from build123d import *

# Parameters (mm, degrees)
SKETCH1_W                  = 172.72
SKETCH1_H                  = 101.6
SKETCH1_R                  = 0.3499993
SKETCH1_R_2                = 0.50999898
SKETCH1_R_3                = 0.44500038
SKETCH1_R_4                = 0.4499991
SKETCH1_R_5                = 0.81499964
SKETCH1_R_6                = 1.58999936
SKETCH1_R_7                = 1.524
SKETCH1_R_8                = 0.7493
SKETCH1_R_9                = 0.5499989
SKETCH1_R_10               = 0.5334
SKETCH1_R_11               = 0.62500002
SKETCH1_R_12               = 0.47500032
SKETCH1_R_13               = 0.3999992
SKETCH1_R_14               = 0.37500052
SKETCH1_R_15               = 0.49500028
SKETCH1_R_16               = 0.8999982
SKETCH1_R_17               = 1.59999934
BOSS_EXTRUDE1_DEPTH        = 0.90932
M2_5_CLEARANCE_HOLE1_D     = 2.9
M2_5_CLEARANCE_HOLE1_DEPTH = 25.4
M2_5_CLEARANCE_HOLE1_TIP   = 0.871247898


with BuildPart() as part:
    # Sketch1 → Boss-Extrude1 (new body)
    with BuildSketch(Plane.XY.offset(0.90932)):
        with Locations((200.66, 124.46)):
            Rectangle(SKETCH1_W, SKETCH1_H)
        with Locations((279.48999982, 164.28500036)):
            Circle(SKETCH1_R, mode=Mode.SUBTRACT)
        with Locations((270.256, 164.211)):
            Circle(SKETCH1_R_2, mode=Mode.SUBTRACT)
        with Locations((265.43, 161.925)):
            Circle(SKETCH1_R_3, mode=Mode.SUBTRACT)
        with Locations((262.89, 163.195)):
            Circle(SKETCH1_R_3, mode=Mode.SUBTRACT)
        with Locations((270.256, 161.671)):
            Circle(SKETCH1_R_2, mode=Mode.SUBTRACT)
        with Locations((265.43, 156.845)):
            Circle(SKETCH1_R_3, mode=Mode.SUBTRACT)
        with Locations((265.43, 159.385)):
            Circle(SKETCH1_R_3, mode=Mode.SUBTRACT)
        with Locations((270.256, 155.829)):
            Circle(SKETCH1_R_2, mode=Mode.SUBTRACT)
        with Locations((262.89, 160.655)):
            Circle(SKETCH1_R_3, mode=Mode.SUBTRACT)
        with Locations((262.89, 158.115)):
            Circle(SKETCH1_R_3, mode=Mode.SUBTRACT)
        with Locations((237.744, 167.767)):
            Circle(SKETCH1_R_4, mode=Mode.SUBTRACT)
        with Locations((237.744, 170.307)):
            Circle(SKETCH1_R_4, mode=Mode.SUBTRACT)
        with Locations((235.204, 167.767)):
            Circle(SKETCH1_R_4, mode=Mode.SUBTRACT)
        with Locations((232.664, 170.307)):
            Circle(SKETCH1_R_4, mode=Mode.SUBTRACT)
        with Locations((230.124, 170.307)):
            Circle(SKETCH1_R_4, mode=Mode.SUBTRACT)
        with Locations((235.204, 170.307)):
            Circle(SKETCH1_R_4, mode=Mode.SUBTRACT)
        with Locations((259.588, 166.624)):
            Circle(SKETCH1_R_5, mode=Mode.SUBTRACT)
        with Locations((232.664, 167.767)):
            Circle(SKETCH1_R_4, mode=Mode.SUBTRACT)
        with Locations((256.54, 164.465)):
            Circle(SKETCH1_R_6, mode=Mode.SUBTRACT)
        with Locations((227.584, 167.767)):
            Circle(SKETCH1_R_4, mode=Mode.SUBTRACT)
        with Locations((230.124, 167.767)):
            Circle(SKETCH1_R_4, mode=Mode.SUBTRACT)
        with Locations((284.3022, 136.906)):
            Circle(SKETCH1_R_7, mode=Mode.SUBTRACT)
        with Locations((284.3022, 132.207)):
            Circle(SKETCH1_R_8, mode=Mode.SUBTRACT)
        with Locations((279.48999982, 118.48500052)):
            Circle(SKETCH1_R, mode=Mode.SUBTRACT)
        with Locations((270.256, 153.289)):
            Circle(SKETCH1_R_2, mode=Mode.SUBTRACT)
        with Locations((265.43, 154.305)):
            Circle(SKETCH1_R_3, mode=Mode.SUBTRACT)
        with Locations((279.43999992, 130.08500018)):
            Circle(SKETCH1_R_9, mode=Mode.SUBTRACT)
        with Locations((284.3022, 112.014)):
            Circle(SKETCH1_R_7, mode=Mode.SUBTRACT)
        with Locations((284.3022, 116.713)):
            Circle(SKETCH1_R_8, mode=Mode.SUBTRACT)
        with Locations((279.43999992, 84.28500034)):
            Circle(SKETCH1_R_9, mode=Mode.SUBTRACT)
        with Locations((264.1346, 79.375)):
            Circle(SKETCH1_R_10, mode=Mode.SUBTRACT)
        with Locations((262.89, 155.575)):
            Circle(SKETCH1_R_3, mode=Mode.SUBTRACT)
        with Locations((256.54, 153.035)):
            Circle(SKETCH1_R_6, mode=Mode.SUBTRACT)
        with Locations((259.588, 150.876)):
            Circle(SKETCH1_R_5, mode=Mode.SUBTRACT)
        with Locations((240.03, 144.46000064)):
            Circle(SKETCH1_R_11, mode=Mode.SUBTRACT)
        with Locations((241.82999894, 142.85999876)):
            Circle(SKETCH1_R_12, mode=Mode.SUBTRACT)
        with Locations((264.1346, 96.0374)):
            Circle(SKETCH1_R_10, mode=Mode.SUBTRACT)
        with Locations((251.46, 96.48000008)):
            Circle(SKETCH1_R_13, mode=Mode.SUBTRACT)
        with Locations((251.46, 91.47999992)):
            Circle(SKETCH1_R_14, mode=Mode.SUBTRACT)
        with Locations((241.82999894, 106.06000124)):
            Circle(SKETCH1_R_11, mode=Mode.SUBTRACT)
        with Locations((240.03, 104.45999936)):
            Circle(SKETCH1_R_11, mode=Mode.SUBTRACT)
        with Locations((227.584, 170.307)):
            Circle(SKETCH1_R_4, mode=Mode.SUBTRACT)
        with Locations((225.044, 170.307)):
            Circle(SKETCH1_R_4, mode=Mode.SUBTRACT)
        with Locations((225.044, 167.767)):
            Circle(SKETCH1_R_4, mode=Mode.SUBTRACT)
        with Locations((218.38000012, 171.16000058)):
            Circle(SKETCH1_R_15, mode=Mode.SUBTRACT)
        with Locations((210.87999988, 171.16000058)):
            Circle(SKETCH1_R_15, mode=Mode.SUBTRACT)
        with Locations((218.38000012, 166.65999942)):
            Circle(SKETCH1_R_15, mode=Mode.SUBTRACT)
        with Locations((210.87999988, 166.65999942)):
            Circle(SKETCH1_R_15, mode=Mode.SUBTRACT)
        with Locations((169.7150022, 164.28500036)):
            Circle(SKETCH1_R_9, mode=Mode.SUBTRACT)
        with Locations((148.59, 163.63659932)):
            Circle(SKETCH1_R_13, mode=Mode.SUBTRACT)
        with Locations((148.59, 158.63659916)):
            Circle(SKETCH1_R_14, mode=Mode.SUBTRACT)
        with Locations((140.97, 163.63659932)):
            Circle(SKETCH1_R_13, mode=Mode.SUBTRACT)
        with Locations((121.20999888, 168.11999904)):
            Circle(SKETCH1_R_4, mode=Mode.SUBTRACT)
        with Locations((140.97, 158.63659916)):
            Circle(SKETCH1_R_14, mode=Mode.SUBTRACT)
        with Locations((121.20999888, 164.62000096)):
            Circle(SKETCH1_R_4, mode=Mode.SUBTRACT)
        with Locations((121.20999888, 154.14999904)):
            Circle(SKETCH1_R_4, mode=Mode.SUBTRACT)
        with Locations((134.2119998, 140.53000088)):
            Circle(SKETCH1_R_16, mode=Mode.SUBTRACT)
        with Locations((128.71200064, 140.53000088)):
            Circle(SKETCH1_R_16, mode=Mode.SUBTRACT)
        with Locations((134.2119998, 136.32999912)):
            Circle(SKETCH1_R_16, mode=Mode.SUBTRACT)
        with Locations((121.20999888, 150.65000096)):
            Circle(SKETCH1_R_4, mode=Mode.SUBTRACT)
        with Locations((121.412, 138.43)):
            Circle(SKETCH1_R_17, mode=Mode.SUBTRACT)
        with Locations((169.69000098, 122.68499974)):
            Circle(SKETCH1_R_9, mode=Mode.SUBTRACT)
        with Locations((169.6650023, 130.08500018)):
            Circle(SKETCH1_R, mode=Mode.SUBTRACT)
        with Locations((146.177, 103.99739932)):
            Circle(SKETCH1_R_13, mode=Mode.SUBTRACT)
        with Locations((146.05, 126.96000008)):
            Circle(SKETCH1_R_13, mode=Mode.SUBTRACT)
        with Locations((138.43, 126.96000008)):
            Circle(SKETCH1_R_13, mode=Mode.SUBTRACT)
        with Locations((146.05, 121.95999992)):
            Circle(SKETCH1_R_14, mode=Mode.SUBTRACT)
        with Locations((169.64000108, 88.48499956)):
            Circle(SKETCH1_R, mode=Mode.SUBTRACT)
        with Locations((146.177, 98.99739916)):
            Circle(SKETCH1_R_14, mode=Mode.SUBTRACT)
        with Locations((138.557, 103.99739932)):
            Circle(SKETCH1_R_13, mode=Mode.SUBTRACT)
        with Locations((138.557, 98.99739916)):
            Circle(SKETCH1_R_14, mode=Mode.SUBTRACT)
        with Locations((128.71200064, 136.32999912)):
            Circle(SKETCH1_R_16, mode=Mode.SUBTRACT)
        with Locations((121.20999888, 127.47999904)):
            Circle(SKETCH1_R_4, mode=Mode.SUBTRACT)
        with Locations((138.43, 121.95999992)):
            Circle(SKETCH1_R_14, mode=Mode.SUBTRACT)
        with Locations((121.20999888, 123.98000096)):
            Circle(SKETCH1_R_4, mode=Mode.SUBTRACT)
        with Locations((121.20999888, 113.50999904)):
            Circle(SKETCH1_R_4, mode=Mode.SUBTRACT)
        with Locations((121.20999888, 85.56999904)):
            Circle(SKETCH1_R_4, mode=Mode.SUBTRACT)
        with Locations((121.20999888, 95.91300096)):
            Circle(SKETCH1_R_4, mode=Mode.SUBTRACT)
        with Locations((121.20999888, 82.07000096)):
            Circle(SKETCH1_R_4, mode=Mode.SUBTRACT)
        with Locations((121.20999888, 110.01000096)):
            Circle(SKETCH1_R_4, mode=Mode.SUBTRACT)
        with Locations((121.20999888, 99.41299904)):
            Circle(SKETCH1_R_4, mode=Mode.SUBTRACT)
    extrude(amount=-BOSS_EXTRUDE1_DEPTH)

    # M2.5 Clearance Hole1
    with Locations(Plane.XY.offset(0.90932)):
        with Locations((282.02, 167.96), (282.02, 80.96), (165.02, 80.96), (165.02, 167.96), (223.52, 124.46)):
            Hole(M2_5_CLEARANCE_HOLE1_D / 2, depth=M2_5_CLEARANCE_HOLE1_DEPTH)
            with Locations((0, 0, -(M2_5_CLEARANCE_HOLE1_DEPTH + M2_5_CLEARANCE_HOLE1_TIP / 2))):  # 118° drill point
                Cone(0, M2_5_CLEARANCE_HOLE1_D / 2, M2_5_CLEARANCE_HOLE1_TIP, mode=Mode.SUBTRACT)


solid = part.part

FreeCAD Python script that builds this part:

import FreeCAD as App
import Part
import Sketcher
Q = App.Units.Quantity


def add_polygon(sketch, points):
    """Adds a closed chain of lines whose ends are joined by coincident constraints."""
    first, n = sketch.GeometryCount, len(points)
    for a, b in zip(points, points[1:] + points[:1]):
        sketch.addGeometry(Part.LineSegment(App.Vector(*a, 0), App.Vector(*b, 0)), False)
    for i in range(n):
        sketch.addConstraint(Sketcher.Constraint("Coincident", first + i, 2, first + (i + 1) % n, 1))

doc = App.newDocument("Part")
body = doc.addObject("PartDesign::Body", "Body")

sketch1 = body.newObject("Sketcher::SketchObject", "Sketch")
sketch1.AttachmentSupport = (doc.getObject("XY_Plane"), [""])
sketch1.MapMode = "FlatFace"
sketch1.AttachmentOffset = App.Placement(App.Vector(0, 0, 0.0358 * 25.4), App.Rotation())
add_polygon(sketch1, [(114.3, 175.26), (114.3, 73.66), (287.02, 73.66), (287.02, 175.26)])
sketch1.addGeometry(Part.Circle(App.Vector(121.21, 82.07, 0), App.Vector(0, 0, 1), 0.45), False)
sketch1.addGeometry(Part.Circle(App.Vector(121.21, 85.57, 0), App.Vector(0, 0, 1), 0.45), False)
sketch1.addGeometry(Part.Circle(App.Vector(121.21, 95.91, 0), App.Vector(0, 0, 1), 0.45), False)
sketch1.addGeometry(Part.Circle(App.Vector(121.21, 99.41, 0), App.Vector(0, 0, 1), 0.45), False)
sketch1.addGeometry(Part.Circle(App.Vector(138.56, 99, 0), App.Vector(0, 0, 1), 0.38), False)
sketch1.addGeometry(Part.Circle(App.Vector(146.18, 99, 0), App.Vector(0, 0, 1), 0.38), False)
sketch1.addGeometry(Part.Circle(App.Vector(169.64, 88.48, 0), App.Vector(0, 0, 1), 0.35), False)
sketch1.addGeometry(Part.Circle(App.Vector(138.56, 104, 0), App.Vector(0, 0, 1), 0.4), False)
sketch1.addGeometry(Part.Circle(App.Vector(121.21, 110.01, 0), App.Vector(0, 0, 1), 0.45), False)
sketch1.addGeometry(Part.Circle(App.Vector(121.21, 113.51, 0), App.Vector(0, 0, 1), 0.45), False)
sketch1.addGeometry(Part.Circle(App.Vector(146.18, 104, 0), App.Vector(0, 0, 1), 0.4), False)
sketch1.addGeometry(Part.Circle(App.Vector(121.21, 123.98, 0), App.Vector(0, 0, 1), 0.45), False)
sketch1.addGeometry(Part.Circle(App.Vector(138.43, 121.96, 0), App.Vector(0, 0, 1), 0.38), False)
sketch1.addGeometry(Part.Circle(App.Vector(146.05, 121.96, 0), App.Vector(0, 0, 1), 0.38), False)
sketch1.addGeometry(Part.Circle(App.Vector(169.69, 122.68, 0), App.Vector(0, 0, 1), 0.55), False)
sketch1.addGeometry(Part.Circle(App.Vector(264.13, 79.38, 0), App.Vector(0, 0, 1), 0.53), False)
sketch1.addGeometry(Part.Circle(App.Vector(279.44, 84.29, 0), App.Vector(0, 0, 1), 0.55), False)
sketch1.addGeometry(Part.Circle(App.Vector(251.46, 91.48, 0), App.Vector(0, 0, 1), 0.38), False)
sketch1.addGeometry(Part.Circle(App.Vector(264.13, 96.04, 0), App.Vector(0, 0, 1), 0.53), False)
sketch1.addGeometry(Part.Circle(App.Vector(251.46, 96.48, 0), App.Vector(0, 0, 1), 0.4), False)
sketch1.addGeometry(Part.Circle(App.Vector(240.03, 104.46, 0), App.Vector(0, 0, 1), 0.63), False)
sketch1.addGeometry(Part.Circle(App.Vector(241.83, 106.06, 0), App.Vector(0, 0, 1), 0.63), False)
sketch1.addGeometry(Part.Circle(App.Vector(284.3, 112.01, 0), App.Vector(0, 0, 1), 1.52), False)
sketch1.addGeometry(Part.Circle(App.Vector(279.49, 118.49, 0), App.Vector(0, 0, 1), 0.35), False)
sketch1.addGeometry(Part.Circle(App.Vector(284.3, 116.71, 0), App.Vector(0, 0, 1), 0.75), False)
sketch1.addGeometry(Part.Circle(App.Vector(121.21, 127.48, 0), App.Vector(0, 0, 1), 0.45), False)
sketch1.addGeometry(Part.Circle(App.Vector(138.43, 126.96, 0), App.Vector(0, 0, 1), 0.4), False)
sketch1.addGeometry(Part.Circle(App.Vector(128.71, 136.33, 0), App.Vector(0, 0, 1), 0.9), False)
sketch1.addGeometry(Part.Circle(App.Vector(134.21, 136.33, 0), App.Vector(0, 0, 1), 0.9), False)
sketch1.addGeometry(Part.Circle(App.Vector(146.05, 126.96, 0), App.Vector(0, 0, 1), 0.4), False)
sketch1.addGeometry(Part.Circle(App.Vector(121.41, 138.43, 0), App.Vector(0, 0, 1), 1.6), False)
sketch1.addGeometry(Part.Circle(App.Vector(128.71, 140.53, 0), App.Vector(0, 0, 1), 0.9), False)
sketch1.addGeometry(Part.Circle(App.Vector(134.21, 140.53, 0), App.Vector(0, 0, 1), 0.9), False)
sketch1.addGeometry(Part.Circle(App.Vector(169.67, 130.09, 0), App.Vector(0, 0, 1), 0.35), False)
sketch1.addGeometry(Part.Circle(App.Vector(121.21, 150.65, 0), App.Vector(0, 0, 1), 0.45), False)
sketch1.addGeometry(Part.Circle(App.Vector(121.21, 154.15, 0), App.Vector(0, 0, 1), 0.45), False)
sketch1.addGeometry(Part.Circle(App.Vector(140.97, 158.64, 0), App.Vector(0, 0, 1), 0.38), False)
sketch1.addGeometry(Part.Circle(App.Vector(148.59, 158.64, 0), App.Vector(0, 0, 1), 0.38), False)
sketch1.addGeometry(Part.Circle(App.Vector(121.21, 164.62, 0), App.Vector(0, 0, 1), 0.45), False)
sketch1.addGeometry(Part.Circle(App.Vector(121.21, 168.12, 0), App.Vector(0, 0, 1), 0.45), False)
sketch1.addGeometry(Part.Circle(App.Vector(140.97, 163.64, 0), App.Vector(0, 0, 1), 0.4), False)
sketch1.addGeometry(Part.Circle(App.Vector(148.59, 163.64, 0), App.Vector(0, 0, 1), 0.4), False)
sketch1.addGeometry(Part.Circle(App.Vector(169.72, 164.29, 0), App.Vector(0, 0, 1), 0.55), False)
sketch1.addGeometry(Part.Circle(App.Vector(241.83, 142.86, 0), App.Vector(0, 0, 1), 0.48), False)
sketch1.addGeometry(Part.Circle(App.Vector(240.03, 144.46, 0), App.Vector(0, 0, 1), 0.63), False)
sketch1.addGeometry(Part.Circle(App.Vector(279.44, 130.09, 0), App.Vector(0, 0, 1), 0.55), False)
sketch1.addGeometry(Part.Circle(App.Vector(284.3, 132.21, 0), App.Vector(0, 0, 1), 0.75), False)
sketch1.addGeometry(Part.Circle(App.Vector(284.3, 136.91, 0), App.Vector(0, 0, 1), 1.52), False)
sketch1.addGeometry(Part.Circle(App.Vector(210.88, 166.66, 0), App.Vector(0, 0, 1), 0.5), False)
sketch1.addGeometry(Part.Circle(App.Vector(210.88, 171.16, 0), App.Vector(0, 0, 1), 0.5), False)
sketch1.addGeometry(Part.Circle(App.Vector(218.38, 166.66, 0), App.Vector(0, 0, 1), 0.5), False)
sketch1.addGeometry(Part.Circle(App.Vector(218.38, 171.16, 0), App.Vector(0, 0, 1), 0.5), False)
sketch1.addGeometry(Part.Circle(App.Vector(225.04, 167.77, 0), App.Vector(0, 0, 1), 0.45), False)
sketch1.addGeometry(Part.Circle(App.Vector(227.58, 167.77, 0), App.Vector(0, 0, 1), 0.45), False)
sketch1.addGeometry(Part.Circle(App.Vector(230.12, 167.77, 0), App.Vector(0, 0, 1), 0.45), False)
sketch1.addGeometry(Part.Circle(App.Vector(232.66, 167.77, 0), App.Vector(0, 0, 1), 0.45), False)
sketch1.addGeometry(Part.Circle(App.Vector(225.04, 170.31, 0), App.Vector(0, 0, 1), 0.45), False)
sketch1.addGeometry(Part.Circle(App.Vector(227.58, 170.31, 0), App.Vector(0, 0, 1), 0.45), False)
sketch1.addGeometry(Part.Circle(App.Vector(230.12, 170.31, 0), App.Vector(0, 0, 1), 0.45), False)
sketch1.addGeometry(Part.Circle(App.Vector(232.66, 170.31, 0), App.Vector(0, 0, 1), 0.45), False)
sketch1.addGeometry(Part.Circle(App.Vector(235.2, 167.77, 0), App.Vector(0, 0, 1), 0.45), False)
sketch1.addGeometry(Part.Circle(App.Vector(237.74, 167.77, 0), App.Vector(0, 0, 1), 0.45), False)
sketch1.addGeometry(Part.Circle(App.Vector(235.2, 170.31, 0), App.Vector(0, 0, 1), 0.45), False)
sketch1.addGeometry(Part.Circle(App.Vector(237.74, 170.31, 0), App.Vector(0, 0, 1), 0.45), False)
sketch1.addGeometry(Part.Circle(App.Vector(259.59, 150.88, 0), App.Vector(0, 0, 1), 0.81), False)
sketch1.addGeometry(Part.Circle(App.Vector(256.54, 153.03, 0), App.Vector(0, 0, 1), 1.59), False)
sketch1.addGeometry(Part.Circle(App.Vector(262.89, 155.57, 0), App.Vector(0, 0, 1), 0.45), False)
sketch1.addGeometry(Part.Circle(App.Vector(262.89, 158.12, 0), App.Vector(0, 0, 1), 0.45), False)
sketch1.addGeometry(Part.Circle(App.Vector(270.26, 153.29, 0), App.Vector(0, 0, 1), 0.51), False)
sketch1.addGeometry(Part.Circle(App.Vector(265.43, 154.31, 0), App.Vector(0, 0, 1), 0.45), False)
sketch1.addGeometry(Part.Circle(App.Vector(265.43, 156.84, 0), App.Vector(0, 0, 1), 0.45), False)
sketch1.addGeometry(Part.Circle(App.Vector(270.26, 155.83, 0), App.Vector(0, 0, 1), 0.51), False)
sketch1.addGeometry(Part.Circle(App.Vector(265.43, 159.38, 0), App.Vector(0, 0, 1), 0.45), False)
sketch1.addGeometry(Part.Circle(App.Vector(262.89, 160.66, 0), App.Vector(0, 0, 1), 0.45), False)
sketch1.addGeometry(Part.Circle(App.Vector(256.54, 164.47, 0), App.Vector(0, 0, 1), 1.59), False)
sketch1.addGeometry(Part.Circle(App.Vector(262.89, 163.19, 0), App.Vector(0, 0, 1), 0.45), False)
sketch1.addGeometry(Part.Circle(App.Vector(259.59, 166.62, 0), App.Vector(0, 0, 1), 0.81), False)
sketch1.addGeometry(Part.Circle(App.Vector(265.43, 161.93, 0), App.Vector(0, 0, 1), 0.45), False)
sketch1.addGeometry(Part.Circle(App.Vector(270.26, 161.67, 0), App.Vector(0, 0, 1), 0.51), False)
sketch1.addGeometry(Part.Circle(App.Vector(270.26, 164.21, 0), App.Vector(0, 0, 1), 0.51), False)
sketch1.addGeometry(Part.Circle(App.Vector(279.49, 164.29, 0), App.Vector(0, 0, 1), 0.35), False)
sketch1.addConstraint([
    Sketcher.Constraint("Vertical", 0),
    Sketcher.Constraint("Horizontal", 1),
    Sketcher.Constraint("Vertical", 2),
    Sketcher.Constraint("Horizontal", 3),
    Sketcher.Constraint("Equal", 4, 5),
    Sketcher.Constraint("Equal", 5, 6),
    Sketcher.Constraint("Equal", 6, 7),
    Sketcher.Constraint("Equal", 8, 9),
    Sketcher.Constraint("Equal", 7, 12),
    Sketcher.Constraint("Equal", 12, 13),
    Sketcher.Constraint("Equal", 11, 14),
    Sketcher.Constraint("Equal", 13, 15),
    Sketcher.Constraint("Equal", 9, 16),
    Sketcher.Constraint("Equal", 16, 17),
    Sketcher.Constraint("Equal", 18, 20),
    Sketcher.Constraint("Equal", 17, 21),
    Sketcher.Constraint("Equal", 19, 22),
    Sketcher.Constraint("Equal", 14, 23),
    Sketcher.Constraint("Equal", 24, 25),
    Sketcher.Constraint("Equal", 10, 27),
    Sketcher.Constraint("Equal", 15, 29),
    Sketcher.Constraint("Equal", 23, 30),
    Sketcher.Constraint("Equal", 31, 32),
    Sketcher.Constraint("Equal", 30, 33),
    Sketcher.Constraint("Equal", 32, 35),
    Sketcher.Constraint("Equal", 35, 36),
    Sketcher.Constraint("Equal", 27, 37),
    Sketcher.Constraint("Equal", 29, 38),
    Sketcher.Constraint("Equal", 38, 39),
    Sketcher.Constraint("Equal", 21, 40),
    Sketcher.Constraint("Equal", 40, 41),
    Sketcher.Constraint("Equal", 39, 42),
    Sketcher.Constraint("Equal", 42, 43),
    Sketcher.Constraint("Equal", 33, 44),
    Sketcher.Constraint("Equal", 44, 45),
    Sketcher.Constraint("Equal", 20, 46),
    Sketcher.Constraint("Equal", 25, 48),
    Sketcher.Constraint("Equal", 46, 49),
    Sketcher.Constraint("Equal", 28, 50),
    Sketcher.Constraint("Equal", 26, 51),
    Sketcher.Constraint("Equal", 52, 53),
    Sketcher.Constraint("Equal", 53, 54),
    Sketcher.Constraint("Equal", 54, 55),
    Sketcher.Constraint("Equal", 43, 56),
    Sketcher.Constraint("Equal", 56, 57),
    Sketcher.Constraint("Equal", 57, 58),
    Sketcher.Constraint("Equal", 58, 59),
    Sketcher.Constraint("Equal", 59, 60),
    Sketcher.Constraint("Equal", 60, 61),
    Sketcher.Constraint("Equal", 61, 62),
    Sketcher.Constraint("Equal", 62, 63),
    Sketcher.Constraint("Equal", 63, 64),
    Sketcher.Constraint("Equal", 64, 65),
    Sketcher.Constraint("Equal", 65, 66),
    Sketcher.Constraint("Equal", 66, 67),
    Sketcher.Constraint("Equal", 70, 71),
    Sketcher.Constraint("Equal", 71, 73),
    Sketcher.Constraint("Equal", 73, 74),
    Sketcher.Constraint("Equal", 72, 75),
    Sketcher.Constraint("Equal", 74, 76),
    Sketcher.Constraint("Equal", 76, 77),
    Sketcher.Constraint("Equal", 69, 78),
    Sketcher.Constraint("Equal", 77, 79),
    Sketcher.Constraint("Equal", 68, 80),
    Sketcher.Constraint("Equal", 79, 81),
    Sketcher.Constraint("Equal", 75, 82),
    Sketcher.Constraint("Equal", 82, 83),
    Sketcher.Constraint("Equal", 37, 84),
    Sketcher.Constraint("Horizontal", 8, 3, 9, 3),
    Sketcher.Constraint("Horizontal", 11, 3, 14, 3),
    Sketcher.Constraint("Horizontal", 16, 3, 17, 3),
    Sketcher.Constraint("Horizontal", 31, 3, 32, 3),
    Sketcher.Constraint("Horizontal", 30, 3, 33, 3),
    Sketcher.Constraint("Horizontal", 35, 3, 36, 3),
    Sketcher.Constraint("Horizontal", 40, 3, 41, 3),
    Sketcher.Constraint("Horizontal", 44, 3, 45, 3),
    Sketcher.Constraint("Horizontal", 37, 3, 49, 3),
    Sketcher.Constraint("Horizontal", 52, 3, 54, 3),
    Sketcher.Constraint("Horizontal", 53, 3, 55, 3),
    Sketcher.Constraint("Horizontal", 56, 3, 57, 3),
    Sketcher.Constraint("Horizontal", 57, 3, 58, 3),
    Sketcher.Constraint("Horizontal", 58, 3, 59, 3),
    Sketcher.Constraint("Horizontal", 60, 3, 61, 3),
    Sketcher.Constraint("Horizontal", 61, 3, 62, 3),
    Sketcher.Constraint("Horizontal", 62, 3, 63, 3),
    Sketcher.Constraint("Horizontal", 59, 3, 64, 3),
    Sketcher.Constraint("Horizontal", 64, 3, 65, 3),
    Sketcher.Constraint("Horizontal", 63, 3, 66, 3),
    Sketcher.Constraint("Horizontal", 66, 3, 67, 3),
    Sketcher.Constraint("Horizontal", 46, 3, 84, 3),
    Sketcher.Constraint("Vertical", 4, 3, 5, 3),
    Sketcher.Constraint("Vertical", 5, 3, 6, 3),
    Sketcher.Constraint("Vertical", 6, 3, 7, 3),
    Sketcher.Constraint("Vertical", 8, 3, 11, 3),
    Sketcher.Constraint("Vertical", 7, 3, 12, 3),
    Sketcher.Constraint("Vertical", 12, 3, 13, 3),
    Sketcher.Constraint("Vertical", 9, 3, 14, 3),
    Sketcher.Constraint("Vertical", 13, 3, 15, 3),
    Sketcher.Constraint("Vertical", 19, 3, 22, 3),
    Sketcher.Constraint("Vertical", 21, 3, 23, 3),
    Sketcher.Constraint("Vertical", 26, 3, 28, 3),
    Sketcher.Constraint("Vertical", 15, 3, 29, 3),
    Sketcher.Constraint("Vertical", 16, 3, 30, 3),
    Sketcher.Constraint("Vertical", 17, 3, 33, 3),
    Sketcher.Constraint("Vertical", 31, 3, 35, 3),
    Sketcher.Constraint("Vertical", 32, 3, 36, 3),
    Sketcher.Constraint("Vertical", 29, 3, 38, 3),
    Sketcher.Constraint("Vertical", 38, 3, 39, 3),
    Sketcher.Constraint("Vertical", 39, 3, 42, 3),
    Sketcher.Constraint("Vertical", 42, 3, 43, 3),
    Sketcher.Constraint("Vertical", 40, 3, 44, 3),
    Sketcher.Constraint("Vertical", 41, 3, 45, 3),
    Sketcher.Constraint("Vertical", 25, 3, 47, 3),
    Sketcher.Constraint("Vertical", 24, 3, 48, 3),
    Sketcher.Constraint("Vertical", 20, 3, 49, 3),
    Sketcher.Constraint("Vertical", 28, 3, 50, 3),
    Sketcher.Constraint("Vertical", 50, 3, 51, 3),
    Sketcher.Constraint("Vertical", 52, 3, 53, 3),
    Sketcher.Constraint("Vertical", 54, 3, 55, 3),
    Sketcher.Constraint("Vertical", 56, 3, 60, 3),
    Sketcher.Constraint("Vertical", 57, 3, 61, 3),
    Sketcher.Constraint("Vertical", 58, 3, 62, 3),
    Sketcher.Constraint("Vertical", 59, 3, 63, 3),
    Sketcher.Constraint("Vertical", 64, 3, 66, 3),
    Sketcher.Constraint("Vertical", 65, 3, 67, 3),
    Sketcher.Constraint("Vertical", 70, 3, 71, 3),
    Sketcher.Constraint("Vertical", 73, 3, 74, 3),
    Sketcher.Constraint("Vertical", 72, 3, 75, 3),
    Sketcher.Constraint("Vertical", 74, 3, 76, 3),
    Sketcher.Constraint("Vertical", 71, 3, 77, 3),
    Sketcher.Constraint("Vertical", 69, 3, 78, 3),
    Sketcher.Constraint("Vertical", 77, 3, 79, 3),
    Sketcher.Constraint("Vertical", 68, 3, 80, 3),
    Sketcher.Constraint("Vertical", 76, 3, 81, 3),
    Sketcher.Constraint("Vertical", 75, 3, 82, 3),
    Sketcher.Constraint("Vertical", 82, 3, 83, 3),
    Sketcher.Constraint("Vertical", 27, 3, 84, 3),
    Sketcher.Constraint("Diameter", 26, Q("0.12 in")),
    Sketcher.Constraint("DistanceY", 0, 2, 0, 1, Q("4 in")),
    Sketcher.Constraint("Diameter", 19, Q("0.042 in")),
    Sketcher.Constraint("Diameter", 28, Q("0.059 in")),
    Sketcher.Constraint("DistanceX", 1, 1, 1, 2, Q("6.8 in")),
    Sketcher.Constraint("DistanceX", -1, 1, 21, 3, Q("9.9 in")),
    Sketcher.Constraint("DistanceX", -1, 1, 69, 3, Q("10.1 in")),
    Sketcher.Constraint("DistanceX", -1, 1, 0, 2, Q("4.5 in")),
    Sketcher.Constraint("DistanceY", -1, 1, 0, 2, Q("2.9 in")),
    Sketcher.Constraint("Diameter", 4, Q("0.899998 mm")),
    Sketcher.Constraint("Diameter", 8, Q("0.750001 mm")),
    Sketcher.Constraint("Diameter", 10, Q("0.699999 mm")),
    Sketcher.Constraint("Diameter", 11, Q("0.799998 mm")),
    Sketcher.Constraint("Diameter", 24, Q("1.25 mm")),
    Sketcher.Constraint("Diameter", 34, Q("3.199999 mm")),
    Sketcher.Constraint("Diameter", 47, Q("0.950001 mm")),
    Sketcher.Constraint("Diameter", 52, Q("0.990001 mm")),
    Sketcher.Constraint("Diameter", 68, Q("1.629999 mm")),
    Sketcher.Constraint("Diameter", 69, Q("3.179999 mm")),
    Sketcher.Constraint("Diameter", 70, Q("0.890001 mm")),
    Sketcher.Constraint("DistanceX", -1, 1, 16, 3, Q("5.45 in")),
    Sketcher.Constraint("DistanceX", -1, 1, 17, 3, Q("5.75 in")),
    Sketcher.Constraint("DistanceX", -1, 1, 24, 3, Q("9.45 in")),
    Sketcher.Constraint("DistanceY", -1, 1, 26, 3, Q("4.41 in")),
    Sketcher.Constraint("DistanceX", -1, 1, 34, 3, Q("4.78 in")),
    Sketcher.Constraint("DistanceY", -1, 1, 34, 3, Q("5.45 in")),
    Sketcher.Constraint("DistanceX", -1, 1, 40, 3, Q("5.55 in")),
    Sketcher.Constraint("DistanceX", -1, 1, 41, 3, Q("5.85 in")),
    Sketcher.Constraint("DistanceY", -1, 1, 51, 3, Q("5.39 in")),
    Sketcher.Constraint("DistanceX", -1, 1, 56, 3, Q("8.86 in")),
    Sketcher.Constraint("DistanceX", -1, 1, 57, 3, Q("8.96 in")),
    Sketcher.Constraint("DistanceX", -1, 1, 58, 3, Q("9.06 in")),
    Sketcher.Constraint("DistanceX", -1, 1, 59, 3, Q("9.16 in")),
    Sketcher.Constraint("DistanceX", -1, 1, 64, 3, Q("9.26 in")),
    Sketcher.Constraint("DistanceX", -1, 1, 65, 3, Q("9.36 in")),
    Sketcher.Constraint("DistanceX", -1, 1, 68, 3, Q("10.22 in")),
    Sketcher.Constraint("DistanceY", -1, 1, 68, 3, Q("5.94 in")),
    Sketcher.Constraint("DistanceX", -1, 1, 70, 3, Q("10.35 in")),
    Sketcher.Constraint("DistanceX", -1, 1, 72, 3, Q("10.64 in")),
    Sketcher.Constraint("DistanceX", -1, 1, 73, 3, Q("10.45 in")),
    Sketcher.Constraint("DistanceY", -1, 1, 80, 3, Q("6.56 in")),
    Sketcher.Constraint("DistanceX", -1, 1, 8, 3, Q("5.455 in")),
    Sketcher.Constraint("DistanceX", -1, 1, 9, 3, Q("5.755 in")),
    Sketcher.Constraint("DistanceX", -1, 1, 19, 3, Q("10.399 in")),
    Sketcher.Constraint("DistanceY", -1, 1, 19, 3, Q("3.125 in")),
    Sketcher.Constraint("DistanceY", -1, 1, 22, 3, Q("3.781 in")),
    Sketcher.Constraint("DistanceX", -1, 1, 26, 3, Q("11.193 in")),
    Sketcher.Constraint("DistanceY", -1, 1, 28, 3, Q("4.595 in")),
    Sketcher.Constraint("DistanceY", -1, 1, 50, 3, Q("5.205 in")),
    Sketcher.Constraint("DistanceY", -1, 1, 56, 3, Q("6.605 in")),
    Sketcher.Constraint("DistanceY", -1, 1, 60, 3, Q("6.705 in")),
    Sketcher.Constraint("DistanceY", -1, 1, 69, 3, Q("6.025 in")),
    Sketcher.Constraint("DistanceY", -1, 1, 70, 3, Q("6.125 in")),
    Sketcher.Constraint("DistanceY", -1, 1, 71, 3, Q("6.225 in")),
    Sketcher.Constraint("DistanceY", -1, 1, 72, 3, Q("6.035 in")),
    Sketcher.Constraint("DistanceY", -1, 1, 73, 3, Q("6.075 in")),
    Sketcher.Constraint("DistanceY", -1, 1, 74, 3, Q("6.175 in")),
    Sketcher.Constraint("DistanceY", -1, 1, 75, 3, Q("6.135 in")),
    Sketcher.Constraint("DistanceY", -1, 1, 76, 3, Q("6.275 in")),
    Sketcher.Constraint("DistanceY", -1, 1, 77, 3, Q("6.325 in")),
    Sketcher.Constraint("DistanceY", -1, 1, 78, 3, Q("6.475 in")),
    Sketcher.Constraint("DistanceY", -1, 1, 79, 3, Q("6.425 in")),
    Sketcher.Constraint("DistanceY", -1, 1, 81, 3, Q("6.375 in")),
    Sketcher.Constraint("DistanceY", -1, 1, 82, 3, Q("6.365 in")),
    Sketcher.Constraint("DistanceY", -1, 1, 83, 3, Q("6.465 in")),
    Sketcher.Constraint("Diameter", 18, Q("1.099998 mm")),
    Sketcher.Constraint("Diameter", 31, Q("1.799996 mm")),
    Sketcher.Constraint("Diameter", 72, Q("1.019998 mm")),
    Sketcher.Constraint("DistanceX", -1, 1, 4, 3, Q("121.209999 mm")),
    Sketcher.Constraint("DistanceY", -1, 1, 4, 3, Q("82.070001 mm")),
    Sketcher.Constraint("DistanceY", -1, 1, 5, 3, Q("85.569999 mm")),
    Sketcher.Constraint("DistanceY", -1, 1, 6, 3, Q("95.913001 mm")),
    Sketcher.Constraint("DistanceY", -1, 1, 7, 3, Q("99.412999 mm")),
    Sketcher.Constraint("DistanceY", -1, 1, 8, 3, Q("98.997399 mm")),
    Sketcher.Constraint("DistanceX", -1, 1, 10, 3, Q("169.640001 mm")),
    Sketcher.Constraint("DistanceY", -1, 1, 10, 3, Q("88.485 mm")),
    Sketcher.Constraint("DistanceY", -1, 1, 11, 3, Q("103.997399 mm")),
    Sketcher.Constraint("DistanceY", -1, 1, 12, 3, Q("110.010001 mm")),
    Sketcher.Constraint("DistanceY", -1, 1, 13, 3, Q("113.509999 mm")),
    Sketcher.Constraint("DistanceY", -1, 1, 15, 3, Q("123.980001 mm")),
    Sketcher.Constraint("DistanceY", -1, 1, 16, 3, Q("121.96 mm")),
    Sketcher.Constraint("DistanceX", -1, 1, 18, 3, Q("169.690001 mm")),
    Sketcher.Constraint("DistanceY", -1, 1, 18, 3, Q("122.685 mm")),
    Sketcher.Constraint("DistanceX", -1, 1, 20, 3, Q("279.44 mm")),
    Sketcher.Constraint("DistanceY", -1, 1, 20, 3, Q("84.285 mm")),
    Sketcher.Constraint("DistanceY", -1, 1, 21, 3, Q("91.48 mm")),
    Sketcher.Constraint("DistanceY", -1, 1, 23, 3, Q("96.48 mm")),
    Sketcher.Constraint("DistanceY", -1, 1, 24, 3, Q("104.459999 mm")),
    Sketcher.Constraint("DistanceX", -1, 1, 25, 3, Q("241.829999 mm")),
    Sketcher.Constraint("DistanceY", -1, 1, 25, 3, Q("106.060001 mm")),
    Sketcher.Constraint("DistanceX", -1, 1, 27, 3, Q("279.49 mm")),
    Sketcher.Constraint("DistanceY", -1, 1, 27, 3, Q("118.485001 mm")),
    Sketcher.Constraint("DistanceY", -1, 1, 29, 3, Q("127.479999 mm")),
    Sketcher.Constraint("DistanceY", -1, 1, 30, 3, Q("126.96 mm")),
    Sketcher.Constraint("DistanceX", -1, 1, 31, 3, Q("128.712001 mm")),
    Sketcher.Constraint("DistanceY", -1, 1, 31, 3, Q("136.329999 mm")),
    Sketcher.Constraint("DistanceX", -1, 1, 32, 3, Q("134.212 mm")),
    Sketcher.Constraint("DistanceY", -1, 1, 35, 3, Q("140.530001 mm")),
    Sketcher.Constraint("DistanceY", -1, 1, 37, 3, Q("130.085 mm")),
    Sketcher.Constraint("DistanceY", -1, 1, 38, 3, Q("150.650001 mm")),
    Sketcher.Constraint("DistanceY", -1, 1, 39, 3, Q("154.149999 mm")),
    Sketcher.Constraint("DistanceY", -1, 1, 40, 3, Q("158.636599 mm")),
    Sketcher.Constraint("DistanceY", -1, 1, 42, 3, Q("164.620001 mm")),
    Sketcher.Constraint("DistanceY", -1, 1, 43, 3, Q("168.119999 mm")),
    Sketcher.Constraint("DistanceY", -1, 1, 44, 3, Q("163.636599 mm")),
    Sketcher.Constraint("DistanceY", -1, 1, 46, 3, Q("164.285 mm")),
    Sketcher.Constraint("DistanceY", -1, 1, 47, 3, Q("142.859999 mm")),
    Sketcher.Constraint("DistanceY", -1, 1, 48, 3, Q("144.460001 mm")),
    Sketcher.Constraint("DistanceX", -1, 1, 52, 3, Q("210.88 mm")),
    Sketcher.Constraint("DistanceY", -1, 1, 52, 3, Q("166.659999 mm")),
    Sketcher.Constraint("DistanceY", -1, 1, 53, 3, Q("171.160001 mm")),
    Sketcher.Constraint("DistanceX", -1, 1, 54, 3, Q("218.38 mm")),
    Sketcher.Constraint("DistanceX", -1, 1, 37, 3, Q("169.665002 mm")),
    Sketcher.Constraint("DistanceX", -1, 1, 46, 3, Q("169.715002 mm")),
])
pad1 = body.newObject("PartDesign::Pad", "Pad")
pad1.Profile = sketch1
pad1.Length = Q("0.0358 in")
pad1.Reversed = True

sketch2 = body.newObject("Sketcher::SketchObject", "Sketch001")
sketch2.AttachmentSupport = (doc.getObject("XY_Plane"), [""])
sketch2.MapMode = "FlatFace"
sketch2.AttachmentOffset = App.Placement(App.Vector(0, 0, 0.0358 * 25.4), App.Rotation())
sketch2.addGeometry([
    Part.Circle(App.Vector(282, 168, 0), App.Vector(0, 0, 1), 1.4),
    Part.Circle(App.Vector(282, 81, 0), App.Vector(0, 0, 1), 1.4),
    Part.Circle(App.Vector(165, 81, 0), App.Vector(0, 0, 1), 1.4),
    Part.Circle(App.Vector(165, 168, 0), App.Vector(0, 0, 1), 1.4),
    Part.Circle(App.Vector(223.5, 124.5, 0), App.Vector(0, 0, 1), 1.4),
], False)
sketch2.addConstraint([
    Sketcher.Constraint("Equal", 0, 1),
    Sketcher.Constraint("Equal", 1, 2),
    Sketcher.Constraint("Equal", 2, 3),
    Sketcher.Constraint("Equal", 3, 4),
    Sketcher.Constraint("Horizontal", 1, 3, 2, 3),
    Sketcher.Constraint("Horizontal", 0, 3, 3, 3),
    Sketcher.Constraint("Vertical", 0, 3, 1, 3),
    Sketcher.Constraint("Vertical", 2, 3, 3, 3),
    Sketcher.Constraint("DistanceX", -1, 1, 4, 3, Q("8.8 in")),
    Sketcher.Constraint("DistanceY", -1, 1, 4, 3, Q("4.9 in")),
    Sketcher.Constraint("Diameter", 0, Q("2.9 mm")),
    Sketcher.Constraint("DistanceX", -1, 1, 0, 3, Q("282.02 mm")),
    Sketcher.Constraint("DistanceY", -1, 1, 0, 3, Q("167.96 mm")),
    Sketcher.Constraint("DistanceY", -1, 1, 1, 3, Q("80.96 mm")),
    Sketcher.Constraint("DistanceX", -1, 1, 2, 3, Q("165.02 mm")),
])
doc.recompute()
hole = body.newObject("PartDesign::Hole", "Hole")
hole.Profile = sketch2
hole.ThreadType = "None"
hole.Diameter = 2.9
hole.DepthType = "Dimension"
hole.Depth = Q("1 in")
hole.DrillPoint = "Angled"
hole.DrillPointAngle = 118

doc.recompute()
